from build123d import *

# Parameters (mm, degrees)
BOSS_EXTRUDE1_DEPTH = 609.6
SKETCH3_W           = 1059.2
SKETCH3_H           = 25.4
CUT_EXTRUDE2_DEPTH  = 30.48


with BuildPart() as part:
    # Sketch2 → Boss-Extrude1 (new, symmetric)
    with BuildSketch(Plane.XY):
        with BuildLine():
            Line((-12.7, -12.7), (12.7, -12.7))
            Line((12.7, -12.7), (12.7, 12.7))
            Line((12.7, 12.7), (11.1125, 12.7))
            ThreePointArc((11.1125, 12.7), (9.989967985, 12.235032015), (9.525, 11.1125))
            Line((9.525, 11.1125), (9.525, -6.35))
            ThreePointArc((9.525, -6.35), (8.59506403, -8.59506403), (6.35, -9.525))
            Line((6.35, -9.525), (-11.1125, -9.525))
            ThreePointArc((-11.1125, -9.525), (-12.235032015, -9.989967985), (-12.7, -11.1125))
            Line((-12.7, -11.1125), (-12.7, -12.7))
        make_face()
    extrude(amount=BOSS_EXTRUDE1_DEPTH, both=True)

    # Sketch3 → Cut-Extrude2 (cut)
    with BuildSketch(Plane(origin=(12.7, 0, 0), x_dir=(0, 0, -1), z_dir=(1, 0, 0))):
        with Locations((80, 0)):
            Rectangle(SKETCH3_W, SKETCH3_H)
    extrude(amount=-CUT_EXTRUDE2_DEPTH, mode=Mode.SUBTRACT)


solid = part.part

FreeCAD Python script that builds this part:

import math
import FreeCAD as App
import Part
import Sketcher
Q = App.Units.Quantity


def add_polygon(sketch, points):
    """Adds a closed chain of lines whose ends are joined by coincident constraints."""
    first, n = sketch.GeometryCount, len(points)
    for a, b in zip(points, points[1:] + points[:1]):
        sketch.addGeometry(Part.LineSegment(App.Vector(*a, 0), App.Vector(*b, 0)), False)
    for i in range(n):
        sketch.addConstraint(Sketcher.Constraint("Coincident", first + i, 2, first + (i + 1) % n, 1))

doc = App.newDocument("Part")
body = doc.addObject("PartDesign::Body", "Body")

sketch1 = body.newObject("Sketcher::SketchObject", "Sketch")
sketch1.AttachmentSupport = (doc.getObject("XY_Plane"), [""])
sketch1.MapMode = "FlatFace"
sketch1.addGeometry([
    Part.LineSegment(App.Vector(-12.7, -12.7, 0), App.Vector(12.7, -12.7, 0)),
    Part.LineSegment(App.Vector(12.7, -12.7, 0), App.Vector(12.7, 12.7, 0)),
    Part.LineSegment(App.Vector(12.7, 12.7, 0), App.Vector(11.1125, 12.7, 0)),
    Part.ArcOfCircle(Part.Circle(App.Vector(11.1125, 11.1125, 0), App.Vector(0, 0, 1), 1.5875), math.radians(90), math.radians(180)),
    Part.LineSegment(App.Vector(9.525, 11.1125, 0), App.Vector(9.525, -6.35, 0)),
    Part.ArcOfCircle(Part.Circle(App.Vector(6.35, -6.35, 0), App.Vector(0, 0, 1), 3.175), math.radians(-90), math.radians(0)),
    Part.LineSegment(App.Vector(6.35, -9.525, 0), App.Vector(-11.1125, -9.525, 0)),
    Part.ArcOfCircle(Part.Circle(App.Vector(-11.1125, -11.1125, 0), App.Vector(0, 0, 1), 1.5875), math.radians(90), math.radians(180)),
    Part.LineSegment(App.Vector(-12.7, -11.1125, 0), App.Vector(-12.7, -12.7, 0)),
], False)
sketch1.addConstraint([
    Sketcher.Constraint("Coincident", 0, 2, 1, 1),
    Sketcher.Constraint("Coincident", 1, 2, 2, 1),
    Sketcher.Constraint("Tangent", 2, 2, 3, 1),
    Sketcher.Constraint("Tangent", 3, 2, 4, 1),
    Sketcher.Constraint("Tangent", 4, 2, 5, 2),
    Sketcher.Constraint("Tangent", 5, 1, 6, 1),
    Sketcher.Constraint("Tangent", 6, 2, 7, 1),
    Sketcher.Constraint("Tangent", 7, 2, 8, 1),
    Sketcher.Constraint("Coincident", 8, 2, 0, 1),
    Sketcher.Constraint("Horizontal", 0),
    Sketcher.Constraint("Vertical", 1),
    Sketcher.Constraint("Horizontal", 2),
    Sketcher.Constraint("Vertical", 4),
    Sketcher.Constraint("Horizontal", 6),
    Sketcher.Constraint("Vertical", 8),
    Sketcher.Constraint("Equal", 3, 7),
    Sketcher.Constraint("Symmetric", 3, 3, 7, 3, -1, 1),
    Sketcher.Constraint("Symmetric", 1, 2, 8, 2, -1, 1),
    Sketcher.Constraint("Equal", 0, 1),
    Sketcher.Constraint("DistanceX", 0, 1, 0, 2, Q("1 in")),
    Sketcher.Constraint("Radius", 3, Q("0.0625 in")),
    Sketcher.Constraint("Radius", 5, Q("0.125 in")),
])
pad1 = body.newObject("PartDesign::Pad", "Pad")
pad1.Profile = sketch1
pad1.Length = Q("48 in")
pad1.Midplane = True

sketch2 = body.newObject("Sketcher::SketchObject", "Sketch001")
sketch2.AttachmentSupport = (doc.getObject("YZ_Plane"), [""])
sketch2.MapMode = "FlatFace"
sketch2.AttachmentOffset = App.Placement(App.Vector(0, 0, 0.5 * 25.4), App.Rotation())
add_polygon(sketch2, [(12.7, 449.6), (-12.7, 449.6), (-12.7, -609.6), (12.7, -609.6)])
sketch2.addConstraint([
    Sketcher.Constraint("Horizontal", 0),
    Sketcher.Constraint("Vertical", 1),
    Sketcher.Constraint("Horizontal", 2),
    Sketcher.Constraint("Vertical", 3),
    Sketcher.Constraint("DistanceX", 0, 2, 0, 1, Q("1 in")),
    Sketcher.Constraint("DistanceY", 1, 2, -1, 1, Q("24 in")),
    Sketcher.Constraint("DistanceX", 0, 2, -1, 1, Q("0.5 in")),
    Sketcher.Constraint("DistanceY", 1, 2, 1, 1, Q("1059.2 mm")),
])
pocket1 = body.newObject("PartDesign::Pocket", "Pocket")
pocket1.Profile = sketch2
pocket1.Length = Q("1.2 in")

doc.recompute()
